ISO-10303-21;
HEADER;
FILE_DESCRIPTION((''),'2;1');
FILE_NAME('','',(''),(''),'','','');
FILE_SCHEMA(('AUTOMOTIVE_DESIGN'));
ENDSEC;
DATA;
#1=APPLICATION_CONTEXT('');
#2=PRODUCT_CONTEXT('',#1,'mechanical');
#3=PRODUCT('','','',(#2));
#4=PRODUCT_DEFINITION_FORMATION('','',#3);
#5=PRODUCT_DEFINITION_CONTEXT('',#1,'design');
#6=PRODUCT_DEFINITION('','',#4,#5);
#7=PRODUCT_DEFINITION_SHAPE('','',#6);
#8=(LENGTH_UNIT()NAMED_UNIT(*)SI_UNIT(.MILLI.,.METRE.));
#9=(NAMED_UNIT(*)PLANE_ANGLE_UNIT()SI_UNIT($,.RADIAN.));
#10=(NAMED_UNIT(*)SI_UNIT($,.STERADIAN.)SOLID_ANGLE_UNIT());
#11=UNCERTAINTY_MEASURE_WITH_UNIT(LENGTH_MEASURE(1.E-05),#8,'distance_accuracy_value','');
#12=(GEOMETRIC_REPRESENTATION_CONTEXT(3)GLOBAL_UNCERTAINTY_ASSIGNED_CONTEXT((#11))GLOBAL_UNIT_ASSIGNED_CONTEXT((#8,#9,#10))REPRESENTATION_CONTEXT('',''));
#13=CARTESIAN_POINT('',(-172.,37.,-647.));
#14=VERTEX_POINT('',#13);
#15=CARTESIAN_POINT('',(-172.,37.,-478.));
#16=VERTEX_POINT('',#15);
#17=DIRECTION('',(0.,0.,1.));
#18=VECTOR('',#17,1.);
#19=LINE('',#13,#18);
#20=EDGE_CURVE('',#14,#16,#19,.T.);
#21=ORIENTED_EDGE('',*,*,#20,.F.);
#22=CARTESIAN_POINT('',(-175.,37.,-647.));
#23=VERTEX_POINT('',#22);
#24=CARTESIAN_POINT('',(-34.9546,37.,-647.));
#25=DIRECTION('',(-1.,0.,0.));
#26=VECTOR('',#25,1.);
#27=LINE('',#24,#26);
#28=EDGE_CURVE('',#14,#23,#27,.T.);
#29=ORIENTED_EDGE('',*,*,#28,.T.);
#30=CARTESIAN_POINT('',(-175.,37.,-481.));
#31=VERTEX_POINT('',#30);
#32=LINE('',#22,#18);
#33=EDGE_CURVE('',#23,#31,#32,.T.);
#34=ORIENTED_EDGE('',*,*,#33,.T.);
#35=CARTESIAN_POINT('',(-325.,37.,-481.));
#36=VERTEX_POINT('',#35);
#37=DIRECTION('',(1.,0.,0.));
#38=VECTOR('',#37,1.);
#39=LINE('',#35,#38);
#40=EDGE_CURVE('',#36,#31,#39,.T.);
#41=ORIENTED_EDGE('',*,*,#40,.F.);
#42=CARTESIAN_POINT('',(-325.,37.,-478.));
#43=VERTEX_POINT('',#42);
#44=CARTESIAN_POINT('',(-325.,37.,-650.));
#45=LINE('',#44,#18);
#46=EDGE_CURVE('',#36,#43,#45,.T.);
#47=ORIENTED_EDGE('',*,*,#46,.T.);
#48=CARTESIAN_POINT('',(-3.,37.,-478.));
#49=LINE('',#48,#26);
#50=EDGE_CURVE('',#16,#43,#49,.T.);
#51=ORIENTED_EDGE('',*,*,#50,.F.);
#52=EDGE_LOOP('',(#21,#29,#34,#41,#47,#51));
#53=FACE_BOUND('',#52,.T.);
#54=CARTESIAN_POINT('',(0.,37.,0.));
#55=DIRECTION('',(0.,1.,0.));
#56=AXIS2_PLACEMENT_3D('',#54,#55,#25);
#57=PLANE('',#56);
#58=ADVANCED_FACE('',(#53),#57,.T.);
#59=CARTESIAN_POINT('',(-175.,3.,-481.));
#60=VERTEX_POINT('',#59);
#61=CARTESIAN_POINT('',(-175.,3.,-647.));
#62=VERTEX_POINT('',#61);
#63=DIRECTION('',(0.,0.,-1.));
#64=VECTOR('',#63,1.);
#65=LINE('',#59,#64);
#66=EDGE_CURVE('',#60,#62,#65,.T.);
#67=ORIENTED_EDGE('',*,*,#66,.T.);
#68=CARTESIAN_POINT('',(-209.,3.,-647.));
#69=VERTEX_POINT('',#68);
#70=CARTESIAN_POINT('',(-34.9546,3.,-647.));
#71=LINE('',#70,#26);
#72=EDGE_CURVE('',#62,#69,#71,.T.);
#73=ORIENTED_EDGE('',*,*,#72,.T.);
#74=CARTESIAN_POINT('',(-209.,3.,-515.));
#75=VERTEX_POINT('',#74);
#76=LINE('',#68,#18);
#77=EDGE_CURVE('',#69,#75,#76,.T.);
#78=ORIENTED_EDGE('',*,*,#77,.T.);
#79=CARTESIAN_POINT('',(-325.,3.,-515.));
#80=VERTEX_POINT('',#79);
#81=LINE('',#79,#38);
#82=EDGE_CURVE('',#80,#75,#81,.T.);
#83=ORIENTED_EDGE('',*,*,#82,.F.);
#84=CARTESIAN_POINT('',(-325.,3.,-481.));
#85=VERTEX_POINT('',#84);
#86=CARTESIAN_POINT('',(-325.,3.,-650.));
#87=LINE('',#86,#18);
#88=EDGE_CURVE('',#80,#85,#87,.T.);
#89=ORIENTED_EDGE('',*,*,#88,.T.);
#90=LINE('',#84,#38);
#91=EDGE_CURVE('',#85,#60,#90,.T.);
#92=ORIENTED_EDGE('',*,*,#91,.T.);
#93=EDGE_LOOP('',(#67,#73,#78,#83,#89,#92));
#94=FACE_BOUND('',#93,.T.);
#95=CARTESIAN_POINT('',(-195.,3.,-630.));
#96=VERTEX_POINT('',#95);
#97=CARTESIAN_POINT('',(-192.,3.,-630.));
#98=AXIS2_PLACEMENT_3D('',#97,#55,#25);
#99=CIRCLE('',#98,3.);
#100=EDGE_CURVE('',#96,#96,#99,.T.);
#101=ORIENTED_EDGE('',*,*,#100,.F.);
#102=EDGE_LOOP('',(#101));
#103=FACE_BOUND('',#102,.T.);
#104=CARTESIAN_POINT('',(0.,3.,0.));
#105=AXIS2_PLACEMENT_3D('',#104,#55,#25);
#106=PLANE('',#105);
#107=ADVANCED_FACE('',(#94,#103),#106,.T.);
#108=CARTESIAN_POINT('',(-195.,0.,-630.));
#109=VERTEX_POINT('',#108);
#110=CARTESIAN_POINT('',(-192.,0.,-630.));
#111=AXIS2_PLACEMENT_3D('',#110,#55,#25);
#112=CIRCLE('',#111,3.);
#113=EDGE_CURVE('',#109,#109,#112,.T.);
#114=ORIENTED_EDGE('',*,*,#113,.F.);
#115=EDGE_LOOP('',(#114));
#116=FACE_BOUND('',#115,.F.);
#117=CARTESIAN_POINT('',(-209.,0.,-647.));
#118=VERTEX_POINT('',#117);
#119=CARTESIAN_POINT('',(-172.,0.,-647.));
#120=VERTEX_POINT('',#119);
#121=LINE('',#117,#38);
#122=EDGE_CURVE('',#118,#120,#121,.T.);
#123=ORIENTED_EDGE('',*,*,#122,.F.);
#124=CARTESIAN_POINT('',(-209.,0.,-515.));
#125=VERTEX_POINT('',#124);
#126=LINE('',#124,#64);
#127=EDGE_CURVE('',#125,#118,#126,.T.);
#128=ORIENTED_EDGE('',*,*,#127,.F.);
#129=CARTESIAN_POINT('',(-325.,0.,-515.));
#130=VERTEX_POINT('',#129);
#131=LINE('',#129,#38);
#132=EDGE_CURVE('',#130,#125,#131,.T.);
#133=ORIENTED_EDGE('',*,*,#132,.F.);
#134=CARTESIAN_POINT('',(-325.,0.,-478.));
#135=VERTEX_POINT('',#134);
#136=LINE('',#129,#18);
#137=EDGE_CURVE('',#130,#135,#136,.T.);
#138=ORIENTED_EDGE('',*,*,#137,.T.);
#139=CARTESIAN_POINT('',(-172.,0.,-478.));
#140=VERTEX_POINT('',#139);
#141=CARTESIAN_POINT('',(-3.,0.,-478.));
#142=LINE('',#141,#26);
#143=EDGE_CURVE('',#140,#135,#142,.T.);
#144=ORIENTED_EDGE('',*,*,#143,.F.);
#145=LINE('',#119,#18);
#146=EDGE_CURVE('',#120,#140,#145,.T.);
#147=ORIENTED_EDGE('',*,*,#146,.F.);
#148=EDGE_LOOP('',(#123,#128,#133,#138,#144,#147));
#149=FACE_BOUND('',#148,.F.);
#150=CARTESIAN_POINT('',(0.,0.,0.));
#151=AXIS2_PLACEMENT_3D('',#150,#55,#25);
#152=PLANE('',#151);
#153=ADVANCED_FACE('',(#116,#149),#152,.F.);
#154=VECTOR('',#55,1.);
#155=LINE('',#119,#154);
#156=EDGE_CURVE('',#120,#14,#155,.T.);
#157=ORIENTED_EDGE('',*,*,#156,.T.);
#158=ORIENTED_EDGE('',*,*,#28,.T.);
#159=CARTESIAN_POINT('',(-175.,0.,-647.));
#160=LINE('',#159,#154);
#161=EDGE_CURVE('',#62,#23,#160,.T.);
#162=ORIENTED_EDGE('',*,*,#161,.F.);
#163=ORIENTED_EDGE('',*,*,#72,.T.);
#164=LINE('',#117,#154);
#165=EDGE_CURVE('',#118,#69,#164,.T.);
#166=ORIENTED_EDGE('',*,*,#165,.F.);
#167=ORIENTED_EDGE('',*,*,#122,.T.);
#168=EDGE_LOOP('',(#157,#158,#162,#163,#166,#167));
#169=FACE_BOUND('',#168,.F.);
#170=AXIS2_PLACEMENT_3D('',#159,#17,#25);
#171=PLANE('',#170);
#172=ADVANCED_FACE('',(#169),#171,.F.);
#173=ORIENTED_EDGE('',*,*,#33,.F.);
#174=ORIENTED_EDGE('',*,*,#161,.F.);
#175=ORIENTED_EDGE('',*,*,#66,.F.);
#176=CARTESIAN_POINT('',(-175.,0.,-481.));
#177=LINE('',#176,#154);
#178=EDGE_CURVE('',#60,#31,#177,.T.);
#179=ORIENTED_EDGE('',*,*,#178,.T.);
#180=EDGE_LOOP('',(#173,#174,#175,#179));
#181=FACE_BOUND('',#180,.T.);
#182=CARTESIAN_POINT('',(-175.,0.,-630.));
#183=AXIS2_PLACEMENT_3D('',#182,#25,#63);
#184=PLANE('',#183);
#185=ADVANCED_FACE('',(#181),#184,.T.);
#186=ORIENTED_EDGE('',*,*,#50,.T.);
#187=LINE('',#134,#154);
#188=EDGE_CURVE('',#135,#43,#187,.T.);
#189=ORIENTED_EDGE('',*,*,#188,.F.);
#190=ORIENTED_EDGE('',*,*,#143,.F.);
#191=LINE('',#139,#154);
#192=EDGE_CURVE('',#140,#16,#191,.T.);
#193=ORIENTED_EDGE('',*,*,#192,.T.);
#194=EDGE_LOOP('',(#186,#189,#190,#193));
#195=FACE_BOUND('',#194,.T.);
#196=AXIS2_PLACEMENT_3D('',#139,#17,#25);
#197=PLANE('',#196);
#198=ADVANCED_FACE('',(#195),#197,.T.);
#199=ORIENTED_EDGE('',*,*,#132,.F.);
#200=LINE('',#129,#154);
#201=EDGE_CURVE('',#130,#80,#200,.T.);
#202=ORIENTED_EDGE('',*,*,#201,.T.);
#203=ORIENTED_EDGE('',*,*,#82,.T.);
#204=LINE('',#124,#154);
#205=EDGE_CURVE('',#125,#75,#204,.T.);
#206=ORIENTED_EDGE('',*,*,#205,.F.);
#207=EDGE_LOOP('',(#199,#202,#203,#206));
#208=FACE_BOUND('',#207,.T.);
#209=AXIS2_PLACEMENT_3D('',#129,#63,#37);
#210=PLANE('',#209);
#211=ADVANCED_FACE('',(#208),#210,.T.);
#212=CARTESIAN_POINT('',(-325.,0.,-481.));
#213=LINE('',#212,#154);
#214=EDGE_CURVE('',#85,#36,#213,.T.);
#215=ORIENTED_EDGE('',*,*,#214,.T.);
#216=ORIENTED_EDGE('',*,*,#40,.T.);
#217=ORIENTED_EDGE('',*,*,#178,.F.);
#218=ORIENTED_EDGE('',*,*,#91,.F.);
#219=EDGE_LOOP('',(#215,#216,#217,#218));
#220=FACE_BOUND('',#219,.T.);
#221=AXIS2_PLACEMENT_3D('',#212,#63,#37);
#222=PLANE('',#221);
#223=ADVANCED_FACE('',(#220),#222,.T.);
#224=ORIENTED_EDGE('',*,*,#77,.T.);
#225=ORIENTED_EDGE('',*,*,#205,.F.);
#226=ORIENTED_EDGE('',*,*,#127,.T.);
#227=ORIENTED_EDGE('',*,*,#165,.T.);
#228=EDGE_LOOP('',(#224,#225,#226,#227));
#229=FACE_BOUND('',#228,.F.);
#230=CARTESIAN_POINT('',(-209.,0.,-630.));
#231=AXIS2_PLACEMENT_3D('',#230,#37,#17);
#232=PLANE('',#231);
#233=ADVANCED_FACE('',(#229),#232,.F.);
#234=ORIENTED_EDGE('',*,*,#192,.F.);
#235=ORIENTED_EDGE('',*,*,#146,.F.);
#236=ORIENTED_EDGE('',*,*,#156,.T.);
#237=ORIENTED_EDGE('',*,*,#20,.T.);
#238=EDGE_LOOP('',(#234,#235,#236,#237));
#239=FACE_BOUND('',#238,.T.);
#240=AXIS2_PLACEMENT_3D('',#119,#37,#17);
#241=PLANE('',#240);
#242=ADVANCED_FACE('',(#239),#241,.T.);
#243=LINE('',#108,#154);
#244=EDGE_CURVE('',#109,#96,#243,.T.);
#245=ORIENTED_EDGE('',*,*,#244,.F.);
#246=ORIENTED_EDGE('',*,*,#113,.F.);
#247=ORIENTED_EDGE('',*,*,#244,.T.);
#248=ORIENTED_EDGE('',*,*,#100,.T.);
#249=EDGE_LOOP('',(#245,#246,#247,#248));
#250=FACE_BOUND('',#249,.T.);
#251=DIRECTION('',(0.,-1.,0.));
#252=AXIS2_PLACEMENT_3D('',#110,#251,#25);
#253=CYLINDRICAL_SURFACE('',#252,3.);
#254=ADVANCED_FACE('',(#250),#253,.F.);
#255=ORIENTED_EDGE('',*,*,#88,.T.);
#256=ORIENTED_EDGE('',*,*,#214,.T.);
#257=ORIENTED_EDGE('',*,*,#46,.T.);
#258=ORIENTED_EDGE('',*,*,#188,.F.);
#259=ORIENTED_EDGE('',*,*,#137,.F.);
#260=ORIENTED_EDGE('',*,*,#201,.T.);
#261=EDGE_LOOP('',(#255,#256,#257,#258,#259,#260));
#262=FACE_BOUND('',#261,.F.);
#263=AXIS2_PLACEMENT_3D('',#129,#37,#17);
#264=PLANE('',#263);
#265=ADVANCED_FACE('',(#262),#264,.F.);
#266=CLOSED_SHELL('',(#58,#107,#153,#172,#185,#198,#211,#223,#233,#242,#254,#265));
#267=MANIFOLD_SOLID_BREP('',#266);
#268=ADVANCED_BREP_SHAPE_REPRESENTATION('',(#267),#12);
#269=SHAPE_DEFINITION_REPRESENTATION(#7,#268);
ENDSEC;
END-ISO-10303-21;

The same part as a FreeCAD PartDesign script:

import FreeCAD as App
import Part
import Sketcher

V = App.Vector

doc = App.newDocument("Part")
body = doc.addObject("PartDesign::Body", "Body")

sketch1 = body.newObject("Sketcher::SketchObject", "Sketch")
sketch1.AttachmentSupport = (doc.getObject("XZ_Plane"), [""])
sketch1.MapMode = "FlatFace"
sketch1.addGeometry([
    Part.LineSegment(V(-325, -515, 0), V(-325, -481, 0)),
    Part.LineSegment(V(-325, -481, 0), V(-175, -481, 0)),
    Part.LineSegment(V(-175, -481, 0), V(-175, -647, 0)),
    Part.LineSegment(V(-175, -647, 0), V(-209, -647, 0)),
    Part.LineSegment(V(-209, -647, 0), V(-209, -515, 0)),
    Part.LineSegment(V(-209, -515, 0), V(-325, -515, 0)),
    Part.Circle(V(-192, -630, 0), V(0, 0, 1), 3),
], False)
sketch1.addConstraint([
    Sketcher.Constraint("Coincident", 0, 2, 1, 1),
    Sketcher.Constraint("Coincident", 1, 2, 2, 1),
    Sketcher.Constraint("Coincident", 2, 2, 3, 1),
    Sketcher.Constraint("Coincident", 3, 2, 4, 1),
    Sketcher.Constraint("Coincident", 4, 2, 5, 1),
    Sketcher.Constraint("Coincident", 5, 2, 0, 1),
    Sketcher.Constraint("Vertical", 0),
    Sketcher.Constraint("Horizontal", 1),
    Sketcher.Constraint("Vertical", 2),
    Sketcher.Constraint("Horizontal", 3),
    Sketcher.Constraint("Vertical", 4),
    Sketcher.Constraint("Horizontal", 5),
    Sketcher.Constraint("Equal", 3, 0),
    Sketcher.Constraint("Diameter", 6, 6.0),
    Sketcher.Constraint("DistanceX", 3, 2, 3, 1, 34.0),
    Sketcher.Constraint("DistanceX", 0, 2, 6, 3, 133.0),
    Sketcher.Constraint("DistanceX", 6, 3, 1, 2, 17.0),
    Sketcher.Constraint("DistanceY", 2, 2, 6, 3, 17.0),
    Sketcher.Constraint("DistanceY", 2, 2, 2, 1, 166.0),
    Sketcher.Constraint("DistanceX", 6, 3, -1, 1, 192.0),
    Sketcher.Constraint("DistanceY", 6, 3, -1, 1, 630.0),
])
pad1 = body.newObject("PartDesign::Pad", "Pad")
pad1.Profile = sketch1
pad1.Length = 3
pad1.Reversed = True

sketch2 = body.newObject("Sketcher::SketchObject", "Sketch001")
sketch2.AttachmentSupport = (doc.getObject("XZ_Plane"), [""])
sketch2.MapMode = "FlatFace"
sketch2.addGeometry([
    Part.LineSegment(V(-325, -478, 0), V(-172, -478, 0)),
    Part.LineSegment(V(-172, -478, 0), V(-172, -647, 0)),
    Part.LineSegment(V(-172, -647, 0), V(-175, -647, 0)),
    Part.LineSegment(V(-175, -647, 0), V(-175, -481, 0)),
    Part.LineSegment(V(-175, -481, 0), V(-325, -481, 0)),
    Part.LineSegment(V(-325, -481, 0), V(-325, -478, 0)),
], False)
sketch2.addConstraint([
    Sketcher.Constraint("Coincident", 0, 2, 1, 1),
    Sketcher.Constraint("Coincident", 1, 2, 2, 1),
    Sketcher.Constraint("Coincident", 2, 2, 3, 1),
    Sketcher.Constraint("Coincident", 3, 2, 4, 1),
    Sketcher.Constraint("Coincident", 4, 2, 5, 1),
    Sketcher.Constraint("Coincident", 5, 2, 0, 1),
    Sketcher.Constraint("Horizontal", 0),
    Sketcher.Constraint("Vertical", 1),
    Sketcher.Constraint("Horizontal", 2),
    Sketcher.Constraint("Vertical", 3),
    Sketcher.Constraint("Horizontal", 4),
    Sketcher.Constraint("Vertical", 5),
    Sketcher.Constraint("Equal", 2, 5),
    Sketcher.Constraint("DistanceX", 2, 2, 2, 1, 3.0),
    Sketcher.Constraint("DistanceX", 0, 1, 0, 2, 153.0),
    Sketcher.Constraint("DistanceY", 1, 2, 1, 1, 169.0),
    Sketcher.Constraint("DistanceX", 0, 2, -1, 1, 172.0),
    Sketcher.Constraint("DistanceY", 0, 2, -1, 1, 478.0),
])
pad2 = body.newObject("PartDesign::Pad", "Pad001")
pad2.Profile = sketch2
pad2.Length = 37
pad2.Reversed = True

doc.recompute()
